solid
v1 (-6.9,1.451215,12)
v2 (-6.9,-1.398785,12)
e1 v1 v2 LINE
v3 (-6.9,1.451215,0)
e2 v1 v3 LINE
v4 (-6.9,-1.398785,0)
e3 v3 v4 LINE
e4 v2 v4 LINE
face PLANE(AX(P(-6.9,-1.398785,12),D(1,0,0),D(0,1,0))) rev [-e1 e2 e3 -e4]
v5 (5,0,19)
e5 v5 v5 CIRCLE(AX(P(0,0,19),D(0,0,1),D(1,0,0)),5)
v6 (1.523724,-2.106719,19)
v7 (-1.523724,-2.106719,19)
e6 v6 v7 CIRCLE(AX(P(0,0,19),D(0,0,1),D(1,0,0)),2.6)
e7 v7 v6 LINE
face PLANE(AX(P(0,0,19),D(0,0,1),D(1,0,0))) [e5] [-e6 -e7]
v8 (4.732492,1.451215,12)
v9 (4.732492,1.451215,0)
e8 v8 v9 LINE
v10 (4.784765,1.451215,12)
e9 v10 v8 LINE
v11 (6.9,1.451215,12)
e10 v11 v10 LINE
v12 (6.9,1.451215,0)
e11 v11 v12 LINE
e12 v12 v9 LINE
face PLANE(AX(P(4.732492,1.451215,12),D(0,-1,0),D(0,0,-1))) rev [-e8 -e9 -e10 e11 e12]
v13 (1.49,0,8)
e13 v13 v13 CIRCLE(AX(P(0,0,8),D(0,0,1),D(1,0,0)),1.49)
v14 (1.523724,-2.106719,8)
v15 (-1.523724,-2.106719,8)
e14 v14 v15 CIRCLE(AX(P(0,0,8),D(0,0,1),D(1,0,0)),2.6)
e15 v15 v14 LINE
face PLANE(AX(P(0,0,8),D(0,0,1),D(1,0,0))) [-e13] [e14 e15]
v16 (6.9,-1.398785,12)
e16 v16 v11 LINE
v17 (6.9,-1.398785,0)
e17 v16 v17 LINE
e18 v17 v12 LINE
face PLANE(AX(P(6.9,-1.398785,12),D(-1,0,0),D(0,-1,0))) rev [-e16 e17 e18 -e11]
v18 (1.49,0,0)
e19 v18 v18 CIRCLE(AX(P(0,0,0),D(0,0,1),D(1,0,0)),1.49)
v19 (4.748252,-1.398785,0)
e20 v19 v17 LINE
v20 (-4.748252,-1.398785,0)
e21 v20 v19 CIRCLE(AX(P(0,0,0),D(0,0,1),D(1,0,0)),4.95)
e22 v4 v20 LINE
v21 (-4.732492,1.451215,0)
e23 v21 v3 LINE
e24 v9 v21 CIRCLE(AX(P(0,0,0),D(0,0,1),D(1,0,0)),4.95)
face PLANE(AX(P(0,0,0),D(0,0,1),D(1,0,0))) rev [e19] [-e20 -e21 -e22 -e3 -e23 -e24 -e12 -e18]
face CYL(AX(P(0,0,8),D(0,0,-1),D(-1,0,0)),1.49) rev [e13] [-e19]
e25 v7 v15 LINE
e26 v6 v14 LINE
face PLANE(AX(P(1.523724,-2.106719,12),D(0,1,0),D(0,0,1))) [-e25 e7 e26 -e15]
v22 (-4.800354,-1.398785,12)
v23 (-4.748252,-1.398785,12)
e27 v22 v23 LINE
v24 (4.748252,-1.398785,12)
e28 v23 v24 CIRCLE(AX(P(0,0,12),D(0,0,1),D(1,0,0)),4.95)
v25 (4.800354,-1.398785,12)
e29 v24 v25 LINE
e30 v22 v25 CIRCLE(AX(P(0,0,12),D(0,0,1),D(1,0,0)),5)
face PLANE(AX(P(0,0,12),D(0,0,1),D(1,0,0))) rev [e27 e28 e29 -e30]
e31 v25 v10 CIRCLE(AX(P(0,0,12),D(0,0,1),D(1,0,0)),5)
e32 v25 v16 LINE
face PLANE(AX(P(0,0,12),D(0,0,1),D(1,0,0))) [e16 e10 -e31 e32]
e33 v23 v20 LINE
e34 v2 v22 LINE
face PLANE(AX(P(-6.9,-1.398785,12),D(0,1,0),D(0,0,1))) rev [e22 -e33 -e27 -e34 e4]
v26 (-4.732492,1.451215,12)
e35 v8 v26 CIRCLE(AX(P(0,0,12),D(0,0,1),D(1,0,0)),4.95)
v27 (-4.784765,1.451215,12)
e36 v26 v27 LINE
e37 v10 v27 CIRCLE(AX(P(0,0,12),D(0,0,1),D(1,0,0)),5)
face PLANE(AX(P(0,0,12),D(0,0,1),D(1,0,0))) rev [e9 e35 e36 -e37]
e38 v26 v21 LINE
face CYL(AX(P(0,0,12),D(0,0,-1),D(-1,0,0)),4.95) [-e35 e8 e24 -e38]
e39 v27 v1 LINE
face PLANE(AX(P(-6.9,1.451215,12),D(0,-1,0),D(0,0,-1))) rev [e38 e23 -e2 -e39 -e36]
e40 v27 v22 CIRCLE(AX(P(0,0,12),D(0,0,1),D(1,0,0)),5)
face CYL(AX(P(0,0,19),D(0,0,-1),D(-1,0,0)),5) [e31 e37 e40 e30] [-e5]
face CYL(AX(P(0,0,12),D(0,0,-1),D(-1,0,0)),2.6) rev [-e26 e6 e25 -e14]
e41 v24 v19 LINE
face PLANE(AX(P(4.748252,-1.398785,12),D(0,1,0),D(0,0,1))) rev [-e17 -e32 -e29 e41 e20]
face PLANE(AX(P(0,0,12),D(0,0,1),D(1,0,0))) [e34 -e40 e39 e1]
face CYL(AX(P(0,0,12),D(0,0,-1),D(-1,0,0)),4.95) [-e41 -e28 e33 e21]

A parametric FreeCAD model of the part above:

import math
import FreeCAD as App
import Part
import Sketcher

V = App.Vector

doc = App.newDocument("Part")
body = doc.addObject("PartDesign::Body", "Body")

sketch1 = body.newObject("Sketcher::SketchObject", "Sketch")
sketch1.AttachmentSupport = (doc.getObject("XY_Plane"), [""])
sketch1.MapMode = "FlatFace"
sketch1.addGeometry(Part.LineSegment(V(6.9, 1.451215, 0), V(4.732492, 1.451215, 0)), False)
sketch1.addGeometry(Part.ArcOfCircle(Part.Circle(V(0, 0, 0), V(0, 0, 1), 4.95), math.radians(17.048115), math.radians(162.951885)), False)
sketch1.addGeometry(Part.LineSegment(V(-4.732492, 1.451215, 0), V(-6.9, 1.451215, 0)), False)
sketch1.addGeometry(Part.LineSegment(V(-6.9, 1.451215, 0), V(-6.9, -1.398785, 0)), False)
sketch1.addGeometry(Part.LineSegment(V(-6.9, -1.398785, 0), V(-4.748252, -1.398785, 0)), False)
sketch1.addGeometry(Part.ArcOfCircle(Part.Circle(V(0, 0, 0), V(0, 0, 1), 4.95), math.radians(-163.585579), math.radians(-16.414421)), False)
sketch1.addGeometry(Part.LineSegment(V(4.748252, -1.398785, 0), V(6.9, -1.398785, 0)), False)
sketch1.addGeometry(Part.LineSegment(V(6.9, -1.398785, 0), V(6.9, 1.451215, 0)), False)
sketch1.addGeometry(Part.LineSegment(V(1.523724, -2.106719, 0), V(-1.523724, -2.106719, 0)), False)
sketch1.addGeometry(Part.ArcOfCircle(Part.Circle(V(0, 0, 0), V(0, 0, 1), 2.6), math.radians(-54.122973), math.radians(234.122973)), False)
sketch1.addConstraint(Sketcher.Constraint("Coincident", 0, 2, 1, 1))
sketch1.addConstraint(Sketcher.Constraint("Coincident", 1, 2, 2, 1))
sketch1.addConstraint(Sketcher.Constraint("Coincident", 2, 2, 3, 1))
sketch1.addConstraint(Sketcher.Constraint("Coincident", 3, 2, 4, 1))
sketch1.addConstraint(Sketcher.Constraint("Coincident", 4, 2, 5, 1))
sketch1.addConstraint(Sketcher.Constraint("Coincident", 5, 2, 6, 1))
sketch1.addConstraint(Sketcher.Constraint("Coincident", 6, 2, 7, 1))
sketch1.addConstraint(Sketcher.Constraint("Coincident", 7, 2, 0, 1))
sketch1.addConstraint(Sketcher.Constraint("Coincident", 8, 1, 9, 1))
sketch1.addConstraint(Sketcher.Constraint("Coincident", 9, 2, 8, 2))
sketch1.addConstraint(Sketcher.Constraint("Horizontal", 0))
sketch1.addConstraint(Sketcher.Constraint("Horizontal", 2))
sketch1.addConstraint(Sketcher.Constraint("Vertical", 3))
sketch1.addConstraint(Sketcher.Constraint("Horizontal", 4))
sketch1.addConstraint(Sketcher.Constraint("Horizontal", 6))
sketch1.addConstraint(Sketcher.Constraint("Vertical", 7))
sketch1.addConstraint(Sketcher.Constraint("Horizontal", 8))
sketch1.addConstraint(Sketcher.Constraint("Coincident", 1, 3, -1, 1))
sketch1.addConstraint(Sketcher.Constraint("Coincident", 5, 3, -1, 1))
sketch1.addConstraint(Sketcher.Constraint("Coincident", 9, 3, -1, 1))
sketch1.addConstraint(Sketcher.Constraint("Equal", 1, 5))
sketch1.addConstraint(Sketcher.Constraint("Symmetric", 3, 2, 6, 2, -2))
sketch1.addConstraint(Sketcher.Constraint("Horizontal", 0, 2, 1, 2))
sketch1.addConstraint(Sketcher.Constraint("Radius", 9, 2.6))
sketch1.addConstraint(Sketcher.Constraint("Radius", 1, 4.95))
sketch1.addConstraint(Sketcher.Constraint("DistanceY", 3, 2, 3, 1, 2.85))
sketch1.addConstraint(Sketcher.Constraint("DistanceX", 2, 2, -1, 1, 6.9))
sketch1.addConstraint(Sketcher.Constraint("DistanceX", 0, 2, 0, 1, 2.167508))
sketch1.addConstraint(Sketcher.Constraint("DistanceX", 8, 2, 8, 1, 3.047447))
pad1 = body.newObject("PartDesign::Pad", "Pad")
pad1.Profile = sketch1
pad1.Length = 12

sketch2 = body.newObject("Sketcher::SketchObject", "Sketch001")
sketch2.AttachmentSupport = (doc.getObject("XY_Plane"), [""])
sketch2.MapMode = "FlatFace"
sketch2.AttachmentOffset = App.Placement(V(0, 0, 12), App.Rotation())
sketch2.addGeometry(Part.Circle(V(0, 0, 0), V(0, 0, 1), 5), False)
sketch2.addGeometry(Part.LineSegment(V(1.523724, -2.106719, 0), V(-1.523724, -2.106719, 0)), False)
sketch2.addGeometry(Part.ArcOfCircle(Part.Circle(V(0, 0, 0), V(0, 0, 1), 2.6), math.radians(-54.122973), math.radians(234.122973)), False)
sketch2.addConstraint(Sketcher.Constraint("Coincident", 1, 1, 2, 1))
sketch2.addConstraint(Sketcher.Constraint("Coincident", 2, 2, 1, 2))
sketch2.addConstraint(Sketcher.Constraint("Horizontal", 1))
sketch2.addConstraint(Sketcher.Constraint("Coincident", 0, 3, -1, 1))
sketch2.addConstraint(Sketcher.Constraint("Coincident", 2, 3, -1, 1))
sketch2.addConstraint(Sketcher.Constraint("Diameter", 0, 10.0))
sketch2.addConstraint(Sketcher.Constraint("Radius", 2, 2.6))
sketch2.addConstraint(Sketcher.Constraint("DistanceX", 1, 2, 1, 1, 3.047447))
pad2 = body.newObject("PartDesign::Pad", "Pad001")
pad2.Profile = sketch2
pad2.Length = 7

sketch3 = body.newObject("Sketcher::SketchObject", "Sketch002")
sketch3.AttachmentSupport = (doc.getObject("XY_Plane"), [""])
sketch3.MapMode = "FlatFace"
sketch3.addGeometry(Part.Circle(V(0, 0, 0), V(0, 0, 1), 2.701875), False)
sketch3.addGeometry(Part.Circle(V(0, 0, 0), V(0, 0, 1), 1.49), False)
sketch3.addConstraint(Sketcher.Constraint("Coincident", 0, 3, -1, 1))
sketch3.addConstraint(Sketcher.Constraint("Coincident", 1, 3, -1, 1))
sketch3.addConstraint(Sketcher.Constraint("Diameter", 1, 2.98))
sketch3.addConstraint(Sketcher.Constraint("Diameter", 0, 5.403749))
pad3 = body.newObject("PartDesign::Pad", "Pad002")
pad3.Profile = sketch3
pad3.Length = 8

doc.recompute()
